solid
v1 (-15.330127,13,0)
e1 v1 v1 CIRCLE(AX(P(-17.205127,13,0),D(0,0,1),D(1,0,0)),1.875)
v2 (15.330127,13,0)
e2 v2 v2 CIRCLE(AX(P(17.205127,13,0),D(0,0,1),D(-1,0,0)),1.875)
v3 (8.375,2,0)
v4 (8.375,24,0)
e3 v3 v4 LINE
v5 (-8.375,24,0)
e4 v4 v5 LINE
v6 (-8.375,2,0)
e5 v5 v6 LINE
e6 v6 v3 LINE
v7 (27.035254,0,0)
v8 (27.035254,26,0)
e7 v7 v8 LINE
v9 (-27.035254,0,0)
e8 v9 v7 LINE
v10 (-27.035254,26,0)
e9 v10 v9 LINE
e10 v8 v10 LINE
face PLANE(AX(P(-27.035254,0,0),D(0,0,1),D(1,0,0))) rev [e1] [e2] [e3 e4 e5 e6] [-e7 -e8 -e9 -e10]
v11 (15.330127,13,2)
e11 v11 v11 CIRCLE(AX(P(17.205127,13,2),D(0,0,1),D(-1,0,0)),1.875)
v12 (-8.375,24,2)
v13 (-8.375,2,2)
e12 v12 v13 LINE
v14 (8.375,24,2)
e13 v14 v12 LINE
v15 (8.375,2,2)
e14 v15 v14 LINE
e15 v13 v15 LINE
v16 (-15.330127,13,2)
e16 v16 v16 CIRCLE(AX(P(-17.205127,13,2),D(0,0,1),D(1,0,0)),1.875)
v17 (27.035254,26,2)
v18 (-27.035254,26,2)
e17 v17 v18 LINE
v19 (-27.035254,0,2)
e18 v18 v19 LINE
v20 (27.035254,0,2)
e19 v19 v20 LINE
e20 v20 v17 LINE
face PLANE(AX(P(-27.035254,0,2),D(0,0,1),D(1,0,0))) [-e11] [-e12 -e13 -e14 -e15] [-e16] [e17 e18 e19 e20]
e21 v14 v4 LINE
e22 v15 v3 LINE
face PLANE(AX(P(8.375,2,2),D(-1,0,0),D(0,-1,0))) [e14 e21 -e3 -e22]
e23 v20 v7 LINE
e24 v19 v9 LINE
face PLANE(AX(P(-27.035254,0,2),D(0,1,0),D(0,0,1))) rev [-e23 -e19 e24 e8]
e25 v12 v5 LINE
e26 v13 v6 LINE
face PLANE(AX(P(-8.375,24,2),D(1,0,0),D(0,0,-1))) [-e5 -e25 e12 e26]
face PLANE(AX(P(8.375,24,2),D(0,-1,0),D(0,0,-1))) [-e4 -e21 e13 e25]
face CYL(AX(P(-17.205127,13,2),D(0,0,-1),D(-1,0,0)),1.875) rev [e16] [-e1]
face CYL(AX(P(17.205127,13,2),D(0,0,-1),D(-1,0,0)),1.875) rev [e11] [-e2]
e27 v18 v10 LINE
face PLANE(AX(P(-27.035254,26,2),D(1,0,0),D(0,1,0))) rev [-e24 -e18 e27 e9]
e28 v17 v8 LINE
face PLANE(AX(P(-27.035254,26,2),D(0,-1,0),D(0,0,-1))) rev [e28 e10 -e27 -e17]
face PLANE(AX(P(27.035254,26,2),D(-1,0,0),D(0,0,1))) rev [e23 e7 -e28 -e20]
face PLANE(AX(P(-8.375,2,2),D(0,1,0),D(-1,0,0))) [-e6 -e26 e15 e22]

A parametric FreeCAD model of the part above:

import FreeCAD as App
import Part
import Sketcher
Q = App.Units.Quantity


def add_polygon(sketch, points):
    """Adds a closed chain of lines whose ends are joined by coincident constraints."""
    first, n = sketch.GeometryCount, len(points)
    for a, b in zip(points, points[1:] + points[:1]):
        sketch.addGeometry(Part.LineSegment(App.Vector(*a, 0), App.Vector(*b, 0)), False)
    for i in range(n):
        sketch.addConstraint(Sketcher.Constraint("Coincident", first + i, 2, first + (i + 1) % n, 1))

doc = App.newDocument("Part")
body = doc.addObject("PartDesign::Body", "Body")

# Sketch on XY plane
sketch1 = body.newObject("Sketcher::SketchObject", "Sketch")
sketch1.AttachmentSupport = (doc.getObject("XY_Plane"), [""])
sketch1.MapMode = "FlatFace"
add_polygon(sketch1, [(-27, 26), (-27, 0), (27, 0), (27, 26)])  # lines 0-3
sketch1.addGeometry(Part.Circle(App.Vector(-17.2, 13, 0), App.Vector(0, 0, 1), 1.9), False)  # 4
add_polygon(sketch1, [(8.4, 2), (-8.4, 2), (-8.4, 24), (8.4, 24)])  # lines 5-8
sketch1.addGeometry(Part.Circle(App.Vector(17.2, 13, 0), App.Vector(0, 0, 1), 1.9), False)  # 9
sketch1.addConstraint([
    Sketcher.Constraint("Vertical", 0),
    Sketcher.Constraint("Horizontal", 1),
    Sketcher.Constraint("Vertical", 2),
    Sketcher.Constraint("Horizontal", 3),
    Sketcher.Constraint("Horizontal", 5),
    Sketcher.Constraint("Vertical", 6),
    Sketcher.Constraint("Horizontal", 7),
    Sketcher.Constraint("Vertical", 8),
    Sketcher.Constraint("Equal", 4, 9),
    Sketcher.Constraint("Symmetric", 0, 2, 1, 2, -1, 1),
    Sketcher.Constraint("Symmetric", 4, 3, 9, 3, -2),
    Sketcher.Constraint("Diameter", 4, Q("3.75 mm")),
    Sketcher.Constraint("DistanceY", 0, 2, 0, 1, Q("26 mm")),
    Sketcher.Constraint("DistanceY", 6, 1, 6, 2, Q("22 mm")),
    Sketcher.Constraint("DistanceY", -1, 1, 4, 3, Q("13 mm")),
    Sketcher.Constraint("DistanceY", -1, 1, 5, 2, Q("2 mm")),
    Sketcher.Constraint("DistanceX", 5, 2, 5, 1, Q("16.75 mm")),
    Sketcher.Constraint("DistanceX", 5, 2, -1, 1, Q("8.375 mm")),
    Sketcher.Constraint("DistanceX", 1, 1, 1, 2, Q("54.070508 mm")),
    Sketcher.Constraint("DistanceX", 0, 2, 9, 3, Q("44.240381 mm")),
])
pad1 = body.newObject("PartDesign::Pad", "Pad")
pad1.Profile = sketch1
pad1.Length = 2

doc.recompute()
